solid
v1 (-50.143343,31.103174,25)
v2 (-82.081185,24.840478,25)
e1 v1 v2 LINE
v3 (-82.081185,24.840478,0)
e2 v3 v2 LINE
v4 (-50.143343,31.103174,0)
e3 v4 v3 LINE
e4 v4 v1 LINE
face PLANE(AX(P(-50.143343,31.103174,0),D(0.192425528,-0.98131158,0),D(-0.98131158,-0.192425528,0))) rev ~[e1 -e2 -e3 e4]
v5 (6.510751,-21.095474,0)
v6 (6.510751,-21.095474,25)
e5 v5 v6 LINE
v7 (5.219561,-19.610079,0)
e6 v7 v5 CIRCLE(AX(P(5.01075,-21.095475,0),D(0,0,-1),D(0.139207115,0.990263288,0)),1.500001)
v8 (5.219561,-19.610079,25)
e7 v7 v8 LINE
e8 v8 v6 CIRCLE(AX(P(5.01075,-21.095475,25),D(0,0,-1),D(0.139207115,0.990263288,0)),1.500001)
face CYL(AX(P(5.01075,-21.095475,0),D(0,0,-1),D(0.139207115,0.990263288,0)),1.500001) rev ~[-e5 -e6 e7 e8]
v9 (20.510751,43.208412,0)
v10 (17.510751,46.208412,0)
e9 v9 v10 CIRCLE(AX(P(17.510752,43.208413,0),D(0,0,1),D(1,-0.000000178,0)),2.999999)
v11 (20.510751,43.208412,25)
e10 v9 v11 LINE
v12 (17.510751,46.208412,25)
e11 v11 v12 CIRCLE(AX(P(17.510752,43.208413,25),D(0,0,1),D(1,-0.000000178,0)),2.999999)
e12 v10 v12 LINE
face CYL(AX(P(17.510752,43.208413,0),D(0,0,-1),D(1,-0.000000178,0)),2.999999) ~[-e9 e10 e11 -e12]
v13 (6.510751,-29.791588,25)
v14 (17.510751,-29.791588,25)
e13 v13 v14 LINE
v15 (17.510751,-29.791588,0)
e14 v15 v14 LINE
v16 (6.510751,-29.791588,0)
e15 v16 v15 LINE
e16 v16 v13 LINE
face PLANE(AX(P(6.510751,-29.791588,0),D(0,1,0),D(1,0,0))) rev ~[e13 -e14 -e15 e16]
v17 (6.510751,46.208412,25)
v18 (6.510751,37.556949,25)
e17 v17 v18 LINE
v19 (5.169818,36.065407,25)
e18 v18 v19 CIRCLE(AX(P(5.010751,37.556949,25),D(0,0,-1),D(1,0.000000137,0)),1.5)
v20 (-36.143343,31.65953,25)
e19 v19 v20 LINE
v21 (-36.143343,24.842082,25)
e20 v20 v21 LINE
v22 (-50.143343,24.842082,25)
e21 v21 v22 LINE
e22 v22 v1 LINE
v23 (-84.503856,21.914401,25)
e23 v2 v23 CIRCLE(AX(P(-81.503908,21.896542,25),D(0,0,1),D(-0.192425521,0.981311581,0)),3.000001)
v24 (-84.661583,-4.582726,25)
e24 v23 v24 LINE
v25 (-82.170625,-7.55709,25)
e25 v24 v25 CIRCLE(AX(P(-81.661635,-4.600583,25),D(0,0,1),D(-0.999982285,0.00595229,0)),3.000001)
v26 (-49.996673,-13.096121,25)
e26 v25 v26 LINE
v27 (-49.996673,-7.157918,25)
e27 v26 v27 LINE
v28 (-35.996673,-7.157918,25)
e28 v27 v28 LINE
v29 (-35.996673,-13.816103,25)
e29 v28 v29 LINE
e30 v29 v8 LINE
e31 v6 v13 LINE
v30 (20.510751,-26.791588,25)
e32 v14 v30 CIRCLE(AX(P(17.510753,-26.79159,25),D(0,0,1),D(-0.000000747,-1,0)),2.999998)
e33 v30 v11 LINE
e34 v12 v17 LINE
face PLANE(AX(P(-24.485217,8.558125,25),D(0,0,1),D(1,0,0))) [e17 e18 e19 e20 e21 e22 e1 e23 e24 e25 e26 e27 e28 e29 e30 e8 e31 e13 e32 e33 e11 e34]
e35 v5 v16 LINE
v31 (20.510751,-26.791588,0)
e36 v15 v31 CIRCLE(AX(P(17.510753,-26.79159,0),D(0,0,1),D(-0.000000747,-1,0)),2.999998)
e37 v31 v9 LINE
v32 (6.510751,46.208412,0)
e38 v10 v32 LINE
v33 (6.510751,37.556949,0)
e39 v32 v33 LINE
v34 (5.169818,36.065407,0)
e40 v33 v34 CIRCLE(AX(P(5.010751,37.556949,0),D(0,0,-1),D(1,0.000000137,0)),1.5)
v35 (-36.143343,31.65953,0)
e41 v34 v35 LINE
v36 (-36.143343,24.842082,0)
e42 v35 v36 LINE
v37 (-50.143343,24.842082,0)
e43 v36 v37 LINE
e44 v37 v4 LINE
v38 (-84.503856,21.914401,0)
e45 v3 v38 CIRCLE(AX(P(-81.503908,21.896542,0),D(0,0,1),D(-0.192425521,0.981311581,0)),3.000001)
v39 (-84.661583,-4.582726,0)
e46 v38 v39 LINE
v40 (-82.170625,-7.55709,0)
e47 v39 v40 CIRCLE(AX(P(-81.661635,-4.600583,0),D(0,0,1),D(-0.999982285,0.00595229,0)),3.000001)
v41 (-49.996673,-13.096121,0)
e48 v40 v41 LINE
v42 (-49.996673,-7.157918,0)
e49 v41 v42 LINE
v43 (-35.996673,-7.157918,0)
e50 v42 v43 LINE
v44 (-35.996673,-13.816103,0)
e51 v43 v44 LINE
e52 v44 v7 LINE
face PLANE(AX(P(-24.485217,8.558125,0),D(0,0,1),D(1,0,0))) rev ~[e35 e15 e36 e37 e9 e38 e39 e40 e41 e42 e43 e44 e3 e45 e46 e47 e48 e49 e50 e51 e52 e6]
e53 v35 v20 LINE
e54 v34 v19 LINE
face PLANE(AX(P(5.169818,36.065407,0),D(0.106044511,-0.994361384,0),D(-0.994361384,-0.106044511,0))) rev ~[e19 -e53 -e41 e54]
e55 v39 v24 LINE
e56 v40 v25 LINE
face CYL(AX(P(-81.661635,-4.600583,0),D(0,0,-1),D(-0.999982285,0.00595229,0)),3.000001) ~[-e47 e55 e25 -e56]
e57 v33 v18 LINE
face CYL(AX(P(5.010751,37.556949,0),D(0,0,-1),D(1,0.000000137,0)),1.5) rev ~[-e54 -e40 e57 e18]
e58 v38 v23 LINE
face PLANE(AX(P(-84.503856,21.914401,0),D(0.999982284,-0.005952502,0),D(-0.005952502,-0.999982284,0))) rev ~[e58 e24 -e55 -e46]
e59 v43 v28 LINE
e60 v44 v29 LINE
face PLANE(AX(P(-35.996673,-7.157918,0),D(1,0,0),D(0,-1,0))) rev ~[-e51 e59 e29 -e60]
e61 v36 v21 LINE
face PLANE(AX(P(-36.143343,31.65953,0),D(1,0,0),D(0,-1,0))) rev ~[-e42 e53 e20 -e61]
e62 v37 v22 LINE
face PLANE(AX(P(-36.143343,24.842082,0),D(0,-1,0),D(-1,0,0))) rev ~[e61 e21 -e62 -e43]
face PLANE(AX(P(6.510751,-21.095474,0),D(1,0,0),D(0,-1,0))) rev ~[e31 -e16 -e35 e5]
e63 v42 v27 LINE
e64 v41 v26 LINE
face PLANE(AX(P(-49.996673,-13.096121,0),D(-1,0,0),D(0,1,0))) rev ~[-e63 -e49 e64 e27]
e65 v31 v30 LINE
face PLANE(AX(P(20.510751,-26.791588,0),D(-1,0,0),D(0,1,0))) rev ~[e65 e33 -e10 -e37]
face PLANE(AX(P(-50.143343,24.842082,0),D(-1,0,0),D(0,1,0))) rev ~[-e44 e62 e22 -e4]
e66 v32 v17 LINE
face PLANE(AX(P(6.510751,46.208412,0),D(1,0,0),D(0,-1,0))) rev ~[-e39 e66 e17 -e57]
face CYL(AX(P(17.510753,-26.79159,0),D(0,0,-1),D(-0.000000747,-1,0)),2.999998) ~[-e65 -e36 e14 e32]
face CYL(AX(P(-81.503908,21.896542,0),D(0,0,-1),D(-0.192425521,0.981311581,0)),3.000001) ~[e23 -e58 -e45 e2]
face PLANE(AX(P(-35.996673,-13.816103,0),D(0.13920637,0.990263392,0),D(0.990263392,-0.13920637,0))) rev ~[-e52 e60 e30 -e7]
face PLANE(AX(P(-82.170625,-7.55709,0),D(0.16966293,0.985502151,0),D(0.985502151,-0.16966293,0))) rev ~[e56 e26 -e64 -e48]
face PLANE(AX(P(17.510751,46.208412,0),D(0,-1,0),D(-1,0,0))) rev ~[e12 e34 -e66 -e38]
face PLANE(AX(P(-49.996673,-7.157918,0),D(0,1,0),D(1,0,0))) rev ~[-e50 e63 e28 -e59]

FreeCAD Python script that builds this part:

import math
import FreeCAD as App
import Part
import Sketcher

V = App.Vector
Q = App.Units.Quantity

doc = App.newDocument("Part")
body = doc.addObject("PartDesign::Body", "Body")

# Sketch on XY plane
sketch1 = body.newObject("Sketcher::SketchObject", "Sketch")
sketch1.AttachmentSupport = (doc.getObject("XY_Plane"), [""])
sketch1.MapMode = "FlatFace"
sketch1.addGeometry(Part.LineSegment(V(20.510751, -26.791588, 0), V(20.510751, 43.208412, 0)), False)
sketch1.addGeometry(Part.ArcOfCircle(Part.Circle(V(17.510752, 43.208413, 0), V(0, 0, 1), 2.999999), math.radians(-0.00001), math.radians(90.00001)), False)
sketch1.addGeometry(Part.LineSegment(V(17.510751, 46.208412, 0), V(6.510751, 46.208412, 0)), False)
sketch1.addGeometry(Part.LineSegment(V(6.510751, 46.208412, 0), V(6.510751, 37.556949, 0)), False)
sketch1.addGeometry(Part.ArcOfCircle(Part.Circle(V(5.010751, 37.556949, 0), V(0, 0, 1), 1.5), math.radians(-83.912652), math.radians(0.000008)), False)
sketch1.addGeometry(Part.LineSegment(V(5.169818, 36.065407, 0), V(-36.143343, 31.65953, 0)), False)
sketch1.addGeometry(Part.LineSegment(V(-36.143343, 31.65953, 0), V(-36.143343, 24.842082, 0)), False)
sketch1.addGeometry(Part.LineSegment(V(-36.143343, 24.842082, 0), V(-50.143343, 24.842082, 0)), False)
sketch1.addGeometry(Part.LineSegment(V(-50.143343, 24.842082, 0), V(-50.143343, 31.103174, 0)), False)
sketch1.addGeometry(Part.LineSegment(V(-50.143343, 31.103174, 0), V(-82.081185, 24.840478, 0)), False)
sketch1.addGeometry(Part.ArcOfCircle(Part.Circle(V(-81.503908, 21.896542, 0), V(0, 0, 1), 3.000001), math.radians(101.094369), math.radians(179.658924)), False)
sketch1.addGeometry(Part.LineSegment(V(-84.503856, 21.914401, 0), V(-84.661583, -4.582726, 0)), False)
sketch1.addGeometry(Part.ArcOfCircle(Part.Circle(V(-81.661635, -4.600583, 0), V(0, 0, 1), 3.000001), math.radians(179.658957), math.radians(260.231764)), False)
sketch1.addGeometry(Part.LineSegment(V(-82.170625, -7.55709, 0), V(-49.996673, -13.096121, 0)), False)
sketch1.addGeometry(Part.LineSegment(V(-49.996673, -13.096121, 0), V(-49.996673, -7.157918, 0)), False)
sketch1.addGeometry(Part.LineSegment(V(-49.996673, -7.157918, 0), V(-35.996673, -7.157918, 0)), False)
sketch1.addGeometry(Part.LineSegment(V(-35.996673, -7.157918, 0), V(-35.996673, -13.816103, 0)), False)
sketch1.addGeometry(Part.LineSegment(V(-35.996673, -13.816103, 0), V(5.219561, -19.610079, 0)), False)
sketch1.addGeometry(Part.ArcOfCircle(Part.Circle(V(5.01075, -21.095475, 0), V(0, 0, 1), 1.500001), math.radians(0.000027), math.radians(81.998032)), False)
sketch1.addGeometry(Part.LineSegment(V(6.510751, -21.095474, 0), V(6.510751, -29.791588, 0)), False)
sketch1.addGeometry(Part.LineSegment(V(6.510751, -29.791588, 0), V(17.510751, -29.791588, 0)), False)
sketch1.addGeometry(Part.ArcOfCircle(Part.Circle(V(17.510753, -26.79159, 0), V(0, 0, 1), 2.999998), math.radians(-90.000043), math.radians(0.000043)), False)
sketch1.addConstraint(Sketcher.Constraint("Coincident", 0, 2, 1, 1))
sketch1.addConstraint(Sketcher.Constraint("Coincident", 1, 2, 2, 1))
sketch1.addConstraint(Sketcher.Constraint("Coincident", 2, 2, 3, 1))
sketch1.addConstraint(Sketcher.Constraint("Coincident", 3, 2, 4, 2))
sketch1.addConstraint(Sketcher.Constraint("Coincident", 4, 1, 5, 1))
sketch1.addConstraint(Sketcher.Constraint("Coincident", 5, 2, 6, 1))
sketch1.addConstraint(Sketcher.Constraint("Coincident", 6, 2, 7, 1))
sketch1.addConstraint(Sketcher.Constraint("Coincident", 7, 2, 8, 1))
sketch1.addConstraint(Sketcher.Constraint("Coincident", 8, 2, 9, 1))
sketch1.addConstraint(Sketcher.Constraint("Coincident", 9, 2, 10, 1))
sketch1.addConstraint(Sketcher.Constraint("Coincident", 10, 2, 11, 1))
sketch1.addConstraint(Sketcher.Constraint("Coincident", 11, 2, 12, 1))
sketch1.addConstraint(Sketcher.Constraint("Coincident", 12, 2, 13, 1))
sketch1.addConstraint(Sketcher.Constraint("Coincident", 13, 2, 14, 1))
sketch1.addConstraint(Sketcher.Constraint("Coincident", 14, 2, 15, 1))
sketch1.addConstraint(Sketcher.Constraint("Coincident", 15, 2, 16, 1))
sketch1.addConstraint(Sketcher.Constraint("Coincident", 16, 2, 17, 1))
sketch1.addConstraint(Sketcher.Constraint("Coincident", 17, 2, 18, 2))
sketch1.addConstraint(Sketcher.Constraint("Coincident", 18, 1, 19, 1))
sketch1.addConstraint(Sketcher.Constraint("Coincident", 19, 2, 20, 1))
sketch1.addConstraint(Sketcher.Constraint("Coincident", 20, 2, 21, 1))
sketch1.addConstraint(Sketcher.Constraint("Coincident", 21, 2, 0, 1))
sketch1.addConstraint(Sketcher.Constraint("Vertical", 0))
sketch1.addConstraint(Sketcher.Constraint("Horizontal", 2))
sketch1.addConstraint(Sketcher.Constraint("Vertical", 3))
sketch1.addConstraint(Sketcher.Constraint("Vertical", 6))
sketch1.addConstraint(Sketcher.Constraint("Horizontal", 7))
sketch1.addConstraint(Sketcher.Constraint("Vertical", 8))
sketch1.addConstraint(Sketcher.Constraint("Vertical", 14))
sketch1.addConstraint(Sketcher.Constraint("Horizontal", 15))
sketch1.addConstraint(Sketcher.Constraint("Vertical", 16))
sketch1.addConstraint(Sketcher.Constraint("Vertical", 19))
sketch1.addConstraint(Sketcher.Constraint("Horizontal", 20))
sketch1.addConstraint(Sketcher.Constraint("Radius", 1, Q("2.999999 mm")))
sketch1.addConstraint(Sketcher.Constraint("Radius", 10, Q("3.000001 mm")))
sketch1.addConstraint(Sketcher.Constraint("Radius", 12, Q("3.000001 mm")))
sketch1.addConstraint(Sketcher.Constraint("Radius", 4, Q("1.5 mm")))
sketch1.addConstraint(Sketcher.Constraint("Radius", 18, Q("1.500001 mm")))
sketch1.addConstraint(Sketcher.Constraint("DistanceX", 2, 2, 2, 1, Q("11 mm")))
sketch1.addConstraint(Sketcher.Constraint("DistanceX", 7, 2, 7, 1, Q("14 mm")))
sketch1.addConstraint(Sketcher.Constraint("DistanceX", 15, 1, 15, 2, Q("14 mm")))
sketch1.addConstraint(Sketcher.Constraint("DistanceX", 20, 1, 20, 2, Q("11 mm")))
sketch1.addConstraint(Sketcher.Constraint("DistanceY", 0, 1, 0, 2, Q("70 mm")))
sketch1.addConstraint(Sketcher.Constraint("DistanceX", 1, 2, 0, 2, Q("3 mm")))
sketch1.addConstraint(Sketcher.Constraint("DistanceY", 0, 2, 1, 2, Q("3 mm")))
sketch1.addConstraint(Sketcher.Constraint("DistanceY", 14, 2, 7, 2, Q("32 mm")))
sketch1.addConstraint(Sketcher.Constraint("DistanceX", 20, 2, 21, 2, Q("3 mm")))
sketch1.addConstraint(Sketcher.Constraint("DistanceY", 20, 2, 21, 2, Q("3 mm")))
sketch1.addConstraint(Sketcher.Constraint("DistanceX", 4, 3, 21, 3, Q("12.500002 mm")))
sketch1.addConstraint(Sketcher.Constraint("DistanceY", 8, 1, 8, 2, Q("6.261092 mm")))
sketch1.addConstraint(Sketcher.Constraint("DistanceY", -1, 1, 10, 2, Q("21.914401 mm")))
sketch1.addConstraint(Sketcher.Constraint("Distance", 5, Q("41.547431 mm")))
sketch1.addConstraint(Sketcher.Constraint("DistanceY", 3, 2, 3, 1, Q("8.651463 mm")))
sketch1.addConstraint(Sketcher.Constraint("DistanceY", 6, 2, 6, 1, Q("6.817448 mm")))
sketch1.addConstraint(Sketcher.Constraint("DistanceY", 14, 1, 14, 2, Q("5.938203 mm")))
sketch1.addConstraint(Sketcher.Constraint("DistanceY", 16, 2, 16, 1, Q("6.658185 mm")))
sketch1.addConstraint(Sketcher.Constraint("DistanceY", 19, 2, 19, 1, Q("8.696114 mm")))
sketch1.addConstraint(Sketcher.Constraint("DistanceX", -1, 1, 1, 3, Q("17.510752 mm")))
sketch1.addConstraint(Sketcher.Constraint("DistanceY", -1, 1, 4, 3, Q("37.556949 mm")))
sketch1.addConstraint(Sketcher.Constraint("DistanceX", 10, 3, -1, 1, Q("81.503908 mm")))
sketch1.addConstraint(Sketcher.Constraint("DistanceY", 21, 3, -1, 1, Q("26.79159 mm")))
sketch1.addConstraint(Sketcher.Constraint("DistanceX", -1, 1, 4, 1, Q("5.169818 mm")))
sketch1.addConstraint(Sketcher.Constraint("DistanceY", -1, 1, 5, 2, Q("31.65953 mm")))
sketch1.addConstraint(Sketcher.Constraint("DistanceY", -1, 1, 9, 2, Q("24.840478 mm")))
sketch1.addConstraint(Sketcher.Constraint("DistanceY", 12, 2, -1, 1, Q("7.55709 mm")))
sketch1.addConstraint(Sketcher.Constraint("DistanceX", -1, 1, 17, 2, Q("5.219561 mm")))
sketch1.addConstraint(Sketcher.Constraint("DistanceY", 17, 2, -1, 1, Q("19.610079 mm")))
sketch1.addConstraint(Sketcher.Constraint("DistanceY", 10, 3, 1, 3, Q("21.31187 mm")))
sketch1.addConstraint(Sketcher.Constraint("DistanceY", 12, 3, 4, 3, Q("42.157532 mm")))
sketch1.addConstraint(Sketcher.Constraint("DistanceX", 12, 3, 21, 3, Q("99.172389 mm")))
sketch1.addConstraint(Sketcher.Constraint("DistanceY", 11, 2, 10, 3, Q("26.479268 mm")))
sketch1.addConstraint(Sketcher.Constraint("DistanceX", 11, 2, 13, 2, Q("34.66491 mm")))
pad1 = body.newObject("PartDesign::Pad", "Pad")
pad1.Profile = sketch1
pad1.Length = 25

# Sketch on XY plane
sketch2 = body.newObject("Sketcher::SketchObject", "Sketch001")
sketch2.AttachmentSupport = (doc.getObject("XY_Plane"), [""])
sketch2.MapMode = "FlatFace"
sketch2.addGeometry(Part.LineSegment(V(20.510751, -26.791588, 0), V(20.510751, 43.208412, 0)), False)
sketch2.addGeometry(Part.ArcOfCircle(Part.Circle(V(17.510752, 43.208413, 0), V(0, 0, 1), 2.999999), math.radians(-0.00001), math.radians(90.00001)), False)
sketch2.addGeometry(Part.LineSegment(V(17.510751, 46.208412, 0), V(6.510751, 46.208412, 0)), False)
sketch2.addGeometry(Part.LineSegment(V(6.510751, 46.208412, 0), V(6.510751, 37.556949, 0)), False)
sketch2.addGeometry(Part.ArcOfCircle(Part.Circle(V(5.010751, 37.556949, 0), V(0, 0, 1), 1.5), math.radians(-83.912652), math.radians(0.000008)), False)
sketch2.addGeometry(Part.LineSegment(V(5.169818, 36.065407, 0), V(-36.143343, 31.65953, 0)), False)
sketch2.addGeometry(Part.LineSegment(V(-36.143343, 31.65953, 0), V(-36.143343, 24.842082, 0)), False)
sketch2.addGeometry(Part.LineSegment(V(-36.143343, 24.842082, 0), V(-50.143343, 24.842082, 0)), False)
sketch2.addGeometry(Part.LineSegment(V(-50.143343, 24.842082, 0), V(-50.143343, 31.103174, 0)), False)
sketch2.addGeometry(Part.LineSegment(V(-50.143343, 31.103174, 0), V(-82.081185, 24.840478, 0)), False)
sketch2.addGeometry(Part.ArcOfCircle(Part.Circle(V(-81.503908, 21.896542, 0), V(0, 0, 1), 3.000001), math.radians(101.094369), math.radians(179.658924)), False)
sketch2.addGeometry(Part.LineSegment(V(-84.503856, 21.914401, 0), V(-84.661583, -4.582726, 0)), False)
sketch2.addGeometry(Part.ArcOfCircle(Part.Circle(V(-81.661635, -4.600583, 0), V(0, 0, 1), 3.000001), math.radians(179.658957), math.radians(260.231764)), False)
sketch2.addGeometry(Part.LineSegment(V(-82.170625, -7.55709, 0), V(-49.996673, -13.096121, 0)), False)
sketch2.addGeometry(Part.LineSegment(V(-49.996673, -13.096121, 0), V(-49.996673, -7.157918, 0)), False)
sketch2.addGeometry(Part.LineSegment(V(-49.996673, -7.157918, 0), V(-35.996673, -7.157918, 0)), False)
sketch2.addGeometry(Part.LineSegment(V(-35.996673, -7.157918, 0), V(-35.996673, -13.816103, 0)), False)
sketch2.addGeometry(Part.LineSegment(V(-35.996673, -13.816103, 0), V(5.219561, -19.610079, 0)), False)
sketch2.addGeometry(Part.ArcOfCircle(Part.Circle(V(5.01075, -21.095475, 0), V(0, 0, 1), 1.500001), math.radians(0.000027), math.radians(81.998032)), False)
sketch2.addGeometry(Part.LineSegment(V(6.510751, -21.095474, 0), V(6.510751, -29.791588, 0)), False)
sketch2.addGeometry(Part.LineSegment(V(6.510751, -29.791588, 0), V(17.510751, -29.791588, 0)), False)
sketch2.addGeometry(Part.ArcOfCircle(Part.Circle(V(17.510753, -26.79159, 0), V(0, 0, 1), 2.999998), math.radians(-90.000043), math.radians(0.000043)), False)
sketch2.addConstraint(Sketcher.Constraint("Coincident", 0, 2, 1, 1))
sketch2.addConstraint(Sketcher.Constraint("Coincident", 1, 2, 2, 1))
sketch2.addConstraint(Sketcher.Constraint("Coincident", 2, 2, 3, 1))
sketch2.addConstraint(Sketcher.Constraint("Coincident", 3, 2, 4, 2))
sketch2.addConstraint(Sketcher.Constraint("Coincident", 4, 1, 5, 1))
sketch2.addConstraint(Sketcher.Constraint("Coincident", 5, 2, 6, 1))
sketch2.addConstraint(Sketcher.Constraint("Coincident", 6, 2, 7, 1))
sketch2.addConstraint(Sketcher.Constraint("Coincident", 7, 2, 8, 1))
sketch2.addConstraint(Sketcher.Constraint("Coincident", 8, 2, 9, 1))
sketch2.addConstraint(Sketcher.Constraint("Coincident", 9, 2, 10, 1))
sketch2.addConstraint(Sketcher.Constraint("Coincident", 10, 2, 11, 1))
sketch2.addConstraint(Sketcher.Constraint("Coincident", 11, 2, 12, 1))
sketch2.addConstraint(Sketcher.Constraint("Coincident", 12, 2, 13, 1))
sketch2.addConstraint(Sketcher.Constraint("Coincident", 13, 2, 14, 1))
sketch2.addConstraint(Sketcher.Constraint("Coincident", 14, 2, 15, 1))
sketch2.addConstraint(Sketcher.Constraint("Coincident", 15, 2, 16, 1))
sketch2.addConstraint(Sketcher.Constraint("Coincident", 16, 2, 17, 1))
sketch2.addConstraint(Sketcher.Constraint("Coincident", 17, 2, 18, 2))
sketch2.addConstraint(Sketcher.Constraint("Coincident", 18, 1, 19, 1))
sketch2.addConstraint(Sketcher.Constraint("Coincident", 19, 2, 20, 1))
sketch2.addConstraint(Sketcher.Constraint("Coincident", 20, 2, 21, 1))
sketch2.addConstraint(Sketcher.Constraint("Coincident", 21, 2, 0, 1))
sketch2.addConstraint(Sketcher.Constraint("Vertical", 0))
sketch2.addConstraint(Sketcher.Constraint("Horizontal", 2))
sketch2.addConstraint(Sketcher.Constraint("Vertical", 3))
sketch2.addConstraint(Sketcher.Constraint("Vertical", 6))
sketch2.addConstraint(Sketcher.Constraint("Horizontal", 7))
sketch2.addConstraint(Sketcher.Constraint("Vertical", 8))
sketch2.addConstraint(Sketcher.Constraint("Vertical", 14))
sketch2.addConstraint(Sketcher.Constraint("Horizontal", 15))
sketch2.addConstraint(Sketcher.Constraint("Vertical", 16))
sketch2.addConstraint(Sketcher.Constraint("Vertical", 19))
sketch2.addConstraint(Sketcher.Constraint("Horizontal", 20))
sketch2.addConstraint(Sketcher.Constraint("Radius", 1, Q("2.999999 mm")))
sketch2.addConstraint(Sketcher.Constraint("Radius", 10, Q("3.000001 mm")))
sketch2.addConstraint(Sketcher.Constraint("Radius", 12, Q("3.000001 mm")))
sketch2.addConstraint(Sketcher.Constraint("Radius", 4, Q("1.5 mm")))
sketch2.addConstraint(Sketcher.Constraint("Radius", 18, Q("1.500001 mm")))
sketch2.addConstraint(Sketcher.Constraint("DistanceX", 2, 2, 2, 1, Q("11 mm")))
sketch2.addConstraint(Sketcher.Constraint("DistanceX", 7, 2, 7, 1, Q("14 mm")))
sketch2.addConstraint(Sketcher.Constraint("DistanceX", 15, 1, 15, 2, Q("14 mm")))
sketch2.addConstraint(Sketcher.Constraint("DistanceX", 20, 1, 20, 2, Q("11 mm")))
sketch2.addConstraint(Sketcher.Constraint("DistanceY", 0, 1, 0, 2, Q("70 mm")))
sketch2.addConstraint(Sketcher.Constraint("DistanceX", 1, 2, 0, 2, Q("3 mm")))
sketch2.addConstraint(Sketcher.Constraint("DistanceY", 0, 2, 1, 2, Q("3 mm")))
sketch2.addConstraint(Sketcher.Constraint("DistanceY", 14, 2, 7, 2, Q("32 mm")))
sketch2.addConstraint(Sketcher.Constraint("DistanceX", 20, 2, 21, 2, Q("3 mm")))
sketch2.addConstraint(Sketcher.Constraint("DistanceY", 20, 2, 21, 2, Q("3 mm")))
sketch2.addConstraint(Sketcher.Constraint("DistanceX", 4, 3, 21, 3, Q("12.500002 mm")))
sketch2.addConstraint(Sketcher.Constraint("DistanceY", 8, 1, 8, 2, Q("6.261092 mm")))
sketch2.addConstraint(Sketcher.Constraint("DistanceY", -1, 1, 10, 2, Q("21.914401 mm")))
sketch2.addConstraint(Sketcher.Constraint("Distance", 5, Q("41.547431 mm")))
sketch2.addConstraint(Sketcher.Constraint("DistanceY", 3, 2, 3, 1, Q("8.651463 mm")))
sketch2.addConstraint(Sketcher.Constraint("DistanceY", 6, 2, 6, 1, Q("6.817448 mm")))
sketch2.addConstraint(Sketcher.Constraint("DistanceY", 14, 1, 14, 2, Q("5.938203 mm")))
sketch2.addConstraint(Sketcher.Constraint("DistanceY", 16, 2, 16, 1, Q("6.658185 mm")))
sketch2.addConstraint(Sketcher.Constraint("DistanceY", 19, 2, 19, 1, Q("8.696114 mm")))
sketch2.addConstraint(Sketcher.Constraint("DistanceX", -1, 1, 1, 3, Q("17.510752 mm")))
sketch2.addConstraint(Sketcher.Constraint("DistanceY", -1, 1, 4, 3, Q("37.556949 mm")))
sketch2.addConstraint(Sketcher.Constraint("DistanceX", 10, 3, -1, 1, Q("81.503908 mm")))
sketch2.addConstraint(Sketcher.Constraint("DistanceY", 21, 3, -1, 1, Q("26.79159 mm")))
sketch2.addConstraint(Sketcher.Constraint("DistanceX", -1, 1, 4, 1, Q("5.169818 mm")))
sketch2.addConstraint(Sketcher.Constraint("DistanceY", -1, 1, 5, 2, Q("31.65953 mm")))
sketch2.addConstraint(Sketcher.Constraint("DistanceY", -1, 1, 9, 2, Q("24.840478 mm")))
sketch2.addConstraint(Sketcher.Constraint("DistanceY", 12, 2, -1, 1, Q("7.55709 mm")))
sketch2.addConstraint(Sketcher.Constraint("DistanceX", -1, 1, 17, 2, Q("5.219561 mm")))
sketch2.addConstraint(Sketcher.Constraint("DistanceY", 17, 2, -1, 1, Q("19.610079 mm")))
sketch2.addConstraint(Sketcher.Constraint("DistanceY", 10, 3, 1, 3, Q("21.31187 mm")))
sketch2.addConstraint(Sketcher.Constraint("DistanceY", 12, 3, 4, 3, Q("42.157532 mm")))
sketch2.addConstraint(Sketcher.Constraint("DistanceX", 12, 3, 21, 3, Q("99.172389 mm")))
sketch2.addConstraint(Sketcher.Constraint("DistanceY", 11, 2, 10, 3, Q("26.479268 mm")))
sketch2.addConstraint(Sketcher.Constraint("DistanceX", 11, 2, 13, 2, Q("34.66491 mm")))
pad2 = body.newObject("PartDesign::Pad", "Pad001")
pad2.Profile = sketch2
pad2.Length = 25

doc.recompute()
